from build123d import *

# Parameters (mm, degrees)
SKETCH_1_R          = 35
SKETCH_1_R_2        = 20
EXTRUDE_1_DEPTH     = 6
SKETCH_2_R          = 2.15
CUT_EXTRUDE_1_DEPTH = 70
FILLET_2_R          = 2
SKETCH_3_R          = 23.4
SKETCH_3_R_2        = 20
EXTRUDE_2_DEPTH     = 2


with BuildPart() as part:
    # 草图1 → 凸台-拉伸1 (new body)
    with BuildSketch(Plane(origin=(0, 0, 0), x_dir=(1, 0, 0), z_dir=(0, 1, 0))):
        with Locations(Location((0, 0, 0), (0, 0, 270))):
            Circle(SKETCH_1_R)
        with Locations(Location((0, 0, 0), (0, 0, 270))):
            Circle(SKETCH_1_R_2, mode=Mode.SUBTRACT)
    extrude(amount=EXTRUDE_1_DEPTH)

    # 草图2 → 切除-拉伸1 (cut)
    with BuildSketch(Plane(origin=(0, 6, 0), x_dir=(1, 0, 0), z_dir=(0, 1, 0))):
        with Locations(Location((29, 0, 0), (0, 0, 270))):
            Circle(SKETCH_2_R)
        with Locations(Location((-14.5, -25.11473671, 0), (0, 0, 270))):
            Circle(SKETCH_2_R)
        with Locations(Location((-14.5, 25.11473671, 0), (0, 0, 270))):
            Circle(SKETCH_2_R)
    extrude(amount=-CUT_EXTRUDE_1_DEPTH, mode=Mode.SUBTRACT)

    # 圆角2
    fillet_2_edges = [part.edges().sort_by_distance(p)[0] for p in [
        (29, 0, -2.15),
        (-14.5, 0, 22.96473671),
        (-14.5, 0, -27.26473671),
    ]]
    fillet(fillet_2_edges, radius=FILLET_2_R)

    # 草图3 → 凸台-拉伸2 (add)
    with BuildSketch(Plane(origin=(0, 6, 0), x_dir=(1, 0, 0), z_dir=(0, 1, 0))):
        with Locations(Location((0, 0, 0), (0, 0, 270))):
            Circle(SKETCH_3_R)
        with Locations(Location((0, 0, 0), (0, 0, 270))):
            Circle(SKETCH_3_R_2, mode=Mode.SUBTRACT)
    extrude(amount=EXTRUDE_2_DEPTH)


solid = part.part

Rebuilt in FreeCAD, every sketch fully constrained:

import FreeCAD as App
import Part
import Sketcher
from FreeCAD import Vector


def edges_at(feature, points):
    """Names of the edges that pass closest to the given points."""
    edges = feature.Shape.Edges
    near = lambda p: min(range(len(edges)), key=lambda i: edges[i].distToShape(Part.Vertex(*p))[0])
    return sorted({f"Edge{near(p) + 1}" for p in points})

doc = App.newDocument("Part")
body = doc.addObject("PartDesign::Body", "Body")

sketch1 = doc.addObject("Sketcher::SketchObject", "Sketch")
body.addObject(sketch1)
sketch1.AttachmentSupport = (doc.XZ_Plane, [""])
sketch1.MapMode = "FlatFace"
sketch1.addGeometry([
    Part.Circle(Vector(0, 0, 0), Vector(0, 0, 1), 35),
    Part.Circle(Vector(0, 0, 0), Vector(0, 0, 1), 20),
], False)
sketch1.addConstraint([
    Sketcher.Constraint("Coincident", 0, 3, -1, 1),
    Sketcher.Constraint("Coincident", 1, 3, -1, 1),
    Sketcher.Constraint("Diameter", 0, 70.0),
    Sketcher.Constraint("Diameter", 1, 40.0),
])
pad1 = doc.addObject("PartDesign::Pad", "Pad")
body.addObject(pad1)
pad1.Profile = sketch1
pad1.Length = 6
pad1.Reversed = True

sketch2 = doc.addObject("Sketcher::SketchObject", "Sketch001")
body.addObject(sketch2)
sketch2.AttachmentSupport = (doc.XZ_Plane, [""])
sketch2.MapMode = "FlatFace"
sketch2.AttachmentOffset = App.Placement(Vector(0, 0, -6), App.Rotation())
sketch2.addGeometry([
    Part.Circle(Vector(29, 0, 0), Vector(0, 0, 1), 2.15),
    Part.Circle(Vector(-14.5, 25.114737, 0), Vector(0, 0, 1), 2.15),
    Part.Circle(Vector(-14.5, -25.114737, 0), Vector(0, 0, 1), 2.15),
], False)
sketch2.addConstraint([
    Sketcher.Constraint("Equal", 0, 1),
    Sketcher.Constraint("Equal", 1, 2),
    Sketcher.Constraint("Symmetric", 1, 3, 2, 3, -1),
    Sketcher.Constraint("PointOnObject", 0, 3, -1),
    Sketcher.Constraint("Diameter", 0, 4.3),
    Sketcher.Constraint("DistanceX", -1, 1, 0, 3, 29.0),
    Sketcher.Constraint("DistanceX", 1, 3, -1, 1, 14.5),
    Sketcher.Constraint("DistanceY", -1, 1, 1, 3, 25.114737),
])
pocket1 = doc.addObject("PartDesign::Pocket", "Pocket")
body.addObject(pocket1)
pocket1.Profile = sketch2
pocket1.Length = 70
pocket1.Reversed = True
doc.recompute()

fillet = doc.addObject("PartDesign::Fillet", "Fillet")
body.addObject(fillet)
fillet.Base = (pocket1, edges_at(pocket1, [(29, 0, -2.15), (-14.5, 0, 22.965), (-14.5, 0, -27.265)]))
fillet.Radius = 2

sketch3 = doc.addObject("Sketcher::SketchObject", "Sketch002")
body.addObject(sketch3)
sketch3.AttachmentSupport = (doc.XZ_Plane, [""])
sketch3.MapMode = "FlatFace"
sketch3.AttachmentOffset = App.Placement(Vector(0, 0, -6), App.Rotation())
sketch3.addGeometry([
    Part.Circle(Vector(0, 0, 0), Vector(0, 0, 1), 23.4),
    Part.Circle(Vector(0, 0, 0), Vector(0, 0, 1), 20),
], False)
sketch3.addConstraint([
    Sketcher.Constraint("Coincident", 0, 3, -1, 1),
    Sketcher.Constraint("Coincident", 1, 3, -1, 1),
    Sketcher.Constraint("Diameter", 1, 40.0),
    Sketcher.Constraint("Diameter", 0, 46.8),
])
pad2 = doc.addObject("PartDesign::Pad", "Pad001")
body.addObject(pad2)
pad2.Profile = sketch3
pad2.Length = 2
pad2.Reversed = True

doc.recompute()
